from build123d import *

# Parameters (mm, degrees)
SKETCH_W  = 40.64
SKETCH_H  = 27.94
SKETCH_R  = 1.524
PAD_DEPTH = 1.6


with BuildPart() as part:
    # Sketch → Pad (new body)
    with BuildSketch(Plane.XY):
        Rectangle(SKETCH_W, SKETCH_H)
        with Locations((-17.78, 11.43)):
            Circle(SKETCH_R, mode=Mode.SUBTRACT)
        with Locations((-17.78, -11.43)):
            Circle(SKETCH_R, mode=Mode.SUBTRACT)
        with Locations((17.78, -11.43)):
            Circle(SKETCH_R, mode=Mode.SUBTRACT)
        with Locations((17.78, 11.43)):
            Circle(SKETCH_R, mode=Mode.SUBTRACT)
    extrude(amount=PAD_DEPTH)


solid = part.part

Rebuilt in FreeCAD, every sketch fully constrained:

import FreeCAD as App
import Part
import Sketcher
Q = App.Units.Quantity


def add_polygon(sketch, points):
    """Adds a closed chain of lines whose ends are joined by coincident constraints."""
    first, n = sketch.GeometryCount, len(points)
    for a, b in zip(points, points[1:] + points[:1]):
        sketch.addGeometry(Part.LineSegment(App.Vector(*a, 0), App.Vector(*b, 0)), False)
    for i in range(n):
        sketch.addConstraint(Sketcher.Constraint("Coincident", first + i, 2, first + (i + 1) % n, 1))

doc = App.newDocument("Part")
body = doc.addObject("PartDesign::Body", "Body")

# Sketch on XY plane
sketch1 = body.newObject("Sketcher::SketchObject", "Sketch")
sketch1.AttachmentSupport = (doc.getObject("XY_Plane"), [""])
sketch1.MapMode = "FlatFace"
add_polygon(sketch1, [(-20.3, 14), (-20.3, -14), (20.3, -14), (20.3, 14)])  # lines 0-3
sketch1.addGeometry(Part.Circle(App.Vector(-17.8, -11.4, 0), App.Vector(0, 0, 1), 1.5), False)  # 4
sketch1.addGeometry(Part.Circle(App.Vector(17.8, -11.4, 0), App.Vector(0, 0, 1), 1.5), False)  # 5
sketch1.addGeometry(Part.Circle(App.Vector(-17.8, 11.4, 0), App.Vector(0, 0, 1), 1.5), False)  # 6
sketch1.addGeometry(Part.Circle(App.Vector(17.8, 11.4, 0), App.Vector(0, 0, 1), 1.5), False)  # 7
sketch1.addConstraint([
    Sketcher.Constraint("Vertical", 0),
    Sketcher.Constraint("Horizontal", 1),
    Sketcher.Constraint("Vertical", 2),
    Sketcher.Constraint("Horizontal", 3),
    Sketcher.Constraint("Equal", 4, 5),
    Sketcher.Constraint("Equal", 5, 6),
    Sketcher.Constraint("Equal", 6, 7),
    Sketcher.Constraint("Symmetric", 5, 3, 6, 3, -1, 1),
    Sketcher.Constraint("Symmetric", 4, 3, 7, 3, -1, 1),
    Sketcher.Constraint("Symmetric", 0, 2, 2, 2, -1, 1),
    Sketcher.Constraint("Symmetric", 4, 3, 5, 3, -2),
    Sketcher.Constraint("Diameter", 4, Q("0.12 in")),
    Sketcher.Constraint("DistanceX", 1, 1, 1, 2, Q("1.6 in")),
    Sketcher.Constraint("DistanceY", 0, 2, 0, 1, Q("1.1 in")),
    Sketcher.Constraint("DistanceY", 0, 2, 6, 3, Q("1 in")),
    Sketcher.Constraint("DistanceX", 4, 3, -1, 1, Q("0.7 in")),
])
pad1 = body.newObject("PartDesign::Pad", "Pad")
pad1.Profile = sketch1
pad1.Length = 1.6

doc.recompute()
